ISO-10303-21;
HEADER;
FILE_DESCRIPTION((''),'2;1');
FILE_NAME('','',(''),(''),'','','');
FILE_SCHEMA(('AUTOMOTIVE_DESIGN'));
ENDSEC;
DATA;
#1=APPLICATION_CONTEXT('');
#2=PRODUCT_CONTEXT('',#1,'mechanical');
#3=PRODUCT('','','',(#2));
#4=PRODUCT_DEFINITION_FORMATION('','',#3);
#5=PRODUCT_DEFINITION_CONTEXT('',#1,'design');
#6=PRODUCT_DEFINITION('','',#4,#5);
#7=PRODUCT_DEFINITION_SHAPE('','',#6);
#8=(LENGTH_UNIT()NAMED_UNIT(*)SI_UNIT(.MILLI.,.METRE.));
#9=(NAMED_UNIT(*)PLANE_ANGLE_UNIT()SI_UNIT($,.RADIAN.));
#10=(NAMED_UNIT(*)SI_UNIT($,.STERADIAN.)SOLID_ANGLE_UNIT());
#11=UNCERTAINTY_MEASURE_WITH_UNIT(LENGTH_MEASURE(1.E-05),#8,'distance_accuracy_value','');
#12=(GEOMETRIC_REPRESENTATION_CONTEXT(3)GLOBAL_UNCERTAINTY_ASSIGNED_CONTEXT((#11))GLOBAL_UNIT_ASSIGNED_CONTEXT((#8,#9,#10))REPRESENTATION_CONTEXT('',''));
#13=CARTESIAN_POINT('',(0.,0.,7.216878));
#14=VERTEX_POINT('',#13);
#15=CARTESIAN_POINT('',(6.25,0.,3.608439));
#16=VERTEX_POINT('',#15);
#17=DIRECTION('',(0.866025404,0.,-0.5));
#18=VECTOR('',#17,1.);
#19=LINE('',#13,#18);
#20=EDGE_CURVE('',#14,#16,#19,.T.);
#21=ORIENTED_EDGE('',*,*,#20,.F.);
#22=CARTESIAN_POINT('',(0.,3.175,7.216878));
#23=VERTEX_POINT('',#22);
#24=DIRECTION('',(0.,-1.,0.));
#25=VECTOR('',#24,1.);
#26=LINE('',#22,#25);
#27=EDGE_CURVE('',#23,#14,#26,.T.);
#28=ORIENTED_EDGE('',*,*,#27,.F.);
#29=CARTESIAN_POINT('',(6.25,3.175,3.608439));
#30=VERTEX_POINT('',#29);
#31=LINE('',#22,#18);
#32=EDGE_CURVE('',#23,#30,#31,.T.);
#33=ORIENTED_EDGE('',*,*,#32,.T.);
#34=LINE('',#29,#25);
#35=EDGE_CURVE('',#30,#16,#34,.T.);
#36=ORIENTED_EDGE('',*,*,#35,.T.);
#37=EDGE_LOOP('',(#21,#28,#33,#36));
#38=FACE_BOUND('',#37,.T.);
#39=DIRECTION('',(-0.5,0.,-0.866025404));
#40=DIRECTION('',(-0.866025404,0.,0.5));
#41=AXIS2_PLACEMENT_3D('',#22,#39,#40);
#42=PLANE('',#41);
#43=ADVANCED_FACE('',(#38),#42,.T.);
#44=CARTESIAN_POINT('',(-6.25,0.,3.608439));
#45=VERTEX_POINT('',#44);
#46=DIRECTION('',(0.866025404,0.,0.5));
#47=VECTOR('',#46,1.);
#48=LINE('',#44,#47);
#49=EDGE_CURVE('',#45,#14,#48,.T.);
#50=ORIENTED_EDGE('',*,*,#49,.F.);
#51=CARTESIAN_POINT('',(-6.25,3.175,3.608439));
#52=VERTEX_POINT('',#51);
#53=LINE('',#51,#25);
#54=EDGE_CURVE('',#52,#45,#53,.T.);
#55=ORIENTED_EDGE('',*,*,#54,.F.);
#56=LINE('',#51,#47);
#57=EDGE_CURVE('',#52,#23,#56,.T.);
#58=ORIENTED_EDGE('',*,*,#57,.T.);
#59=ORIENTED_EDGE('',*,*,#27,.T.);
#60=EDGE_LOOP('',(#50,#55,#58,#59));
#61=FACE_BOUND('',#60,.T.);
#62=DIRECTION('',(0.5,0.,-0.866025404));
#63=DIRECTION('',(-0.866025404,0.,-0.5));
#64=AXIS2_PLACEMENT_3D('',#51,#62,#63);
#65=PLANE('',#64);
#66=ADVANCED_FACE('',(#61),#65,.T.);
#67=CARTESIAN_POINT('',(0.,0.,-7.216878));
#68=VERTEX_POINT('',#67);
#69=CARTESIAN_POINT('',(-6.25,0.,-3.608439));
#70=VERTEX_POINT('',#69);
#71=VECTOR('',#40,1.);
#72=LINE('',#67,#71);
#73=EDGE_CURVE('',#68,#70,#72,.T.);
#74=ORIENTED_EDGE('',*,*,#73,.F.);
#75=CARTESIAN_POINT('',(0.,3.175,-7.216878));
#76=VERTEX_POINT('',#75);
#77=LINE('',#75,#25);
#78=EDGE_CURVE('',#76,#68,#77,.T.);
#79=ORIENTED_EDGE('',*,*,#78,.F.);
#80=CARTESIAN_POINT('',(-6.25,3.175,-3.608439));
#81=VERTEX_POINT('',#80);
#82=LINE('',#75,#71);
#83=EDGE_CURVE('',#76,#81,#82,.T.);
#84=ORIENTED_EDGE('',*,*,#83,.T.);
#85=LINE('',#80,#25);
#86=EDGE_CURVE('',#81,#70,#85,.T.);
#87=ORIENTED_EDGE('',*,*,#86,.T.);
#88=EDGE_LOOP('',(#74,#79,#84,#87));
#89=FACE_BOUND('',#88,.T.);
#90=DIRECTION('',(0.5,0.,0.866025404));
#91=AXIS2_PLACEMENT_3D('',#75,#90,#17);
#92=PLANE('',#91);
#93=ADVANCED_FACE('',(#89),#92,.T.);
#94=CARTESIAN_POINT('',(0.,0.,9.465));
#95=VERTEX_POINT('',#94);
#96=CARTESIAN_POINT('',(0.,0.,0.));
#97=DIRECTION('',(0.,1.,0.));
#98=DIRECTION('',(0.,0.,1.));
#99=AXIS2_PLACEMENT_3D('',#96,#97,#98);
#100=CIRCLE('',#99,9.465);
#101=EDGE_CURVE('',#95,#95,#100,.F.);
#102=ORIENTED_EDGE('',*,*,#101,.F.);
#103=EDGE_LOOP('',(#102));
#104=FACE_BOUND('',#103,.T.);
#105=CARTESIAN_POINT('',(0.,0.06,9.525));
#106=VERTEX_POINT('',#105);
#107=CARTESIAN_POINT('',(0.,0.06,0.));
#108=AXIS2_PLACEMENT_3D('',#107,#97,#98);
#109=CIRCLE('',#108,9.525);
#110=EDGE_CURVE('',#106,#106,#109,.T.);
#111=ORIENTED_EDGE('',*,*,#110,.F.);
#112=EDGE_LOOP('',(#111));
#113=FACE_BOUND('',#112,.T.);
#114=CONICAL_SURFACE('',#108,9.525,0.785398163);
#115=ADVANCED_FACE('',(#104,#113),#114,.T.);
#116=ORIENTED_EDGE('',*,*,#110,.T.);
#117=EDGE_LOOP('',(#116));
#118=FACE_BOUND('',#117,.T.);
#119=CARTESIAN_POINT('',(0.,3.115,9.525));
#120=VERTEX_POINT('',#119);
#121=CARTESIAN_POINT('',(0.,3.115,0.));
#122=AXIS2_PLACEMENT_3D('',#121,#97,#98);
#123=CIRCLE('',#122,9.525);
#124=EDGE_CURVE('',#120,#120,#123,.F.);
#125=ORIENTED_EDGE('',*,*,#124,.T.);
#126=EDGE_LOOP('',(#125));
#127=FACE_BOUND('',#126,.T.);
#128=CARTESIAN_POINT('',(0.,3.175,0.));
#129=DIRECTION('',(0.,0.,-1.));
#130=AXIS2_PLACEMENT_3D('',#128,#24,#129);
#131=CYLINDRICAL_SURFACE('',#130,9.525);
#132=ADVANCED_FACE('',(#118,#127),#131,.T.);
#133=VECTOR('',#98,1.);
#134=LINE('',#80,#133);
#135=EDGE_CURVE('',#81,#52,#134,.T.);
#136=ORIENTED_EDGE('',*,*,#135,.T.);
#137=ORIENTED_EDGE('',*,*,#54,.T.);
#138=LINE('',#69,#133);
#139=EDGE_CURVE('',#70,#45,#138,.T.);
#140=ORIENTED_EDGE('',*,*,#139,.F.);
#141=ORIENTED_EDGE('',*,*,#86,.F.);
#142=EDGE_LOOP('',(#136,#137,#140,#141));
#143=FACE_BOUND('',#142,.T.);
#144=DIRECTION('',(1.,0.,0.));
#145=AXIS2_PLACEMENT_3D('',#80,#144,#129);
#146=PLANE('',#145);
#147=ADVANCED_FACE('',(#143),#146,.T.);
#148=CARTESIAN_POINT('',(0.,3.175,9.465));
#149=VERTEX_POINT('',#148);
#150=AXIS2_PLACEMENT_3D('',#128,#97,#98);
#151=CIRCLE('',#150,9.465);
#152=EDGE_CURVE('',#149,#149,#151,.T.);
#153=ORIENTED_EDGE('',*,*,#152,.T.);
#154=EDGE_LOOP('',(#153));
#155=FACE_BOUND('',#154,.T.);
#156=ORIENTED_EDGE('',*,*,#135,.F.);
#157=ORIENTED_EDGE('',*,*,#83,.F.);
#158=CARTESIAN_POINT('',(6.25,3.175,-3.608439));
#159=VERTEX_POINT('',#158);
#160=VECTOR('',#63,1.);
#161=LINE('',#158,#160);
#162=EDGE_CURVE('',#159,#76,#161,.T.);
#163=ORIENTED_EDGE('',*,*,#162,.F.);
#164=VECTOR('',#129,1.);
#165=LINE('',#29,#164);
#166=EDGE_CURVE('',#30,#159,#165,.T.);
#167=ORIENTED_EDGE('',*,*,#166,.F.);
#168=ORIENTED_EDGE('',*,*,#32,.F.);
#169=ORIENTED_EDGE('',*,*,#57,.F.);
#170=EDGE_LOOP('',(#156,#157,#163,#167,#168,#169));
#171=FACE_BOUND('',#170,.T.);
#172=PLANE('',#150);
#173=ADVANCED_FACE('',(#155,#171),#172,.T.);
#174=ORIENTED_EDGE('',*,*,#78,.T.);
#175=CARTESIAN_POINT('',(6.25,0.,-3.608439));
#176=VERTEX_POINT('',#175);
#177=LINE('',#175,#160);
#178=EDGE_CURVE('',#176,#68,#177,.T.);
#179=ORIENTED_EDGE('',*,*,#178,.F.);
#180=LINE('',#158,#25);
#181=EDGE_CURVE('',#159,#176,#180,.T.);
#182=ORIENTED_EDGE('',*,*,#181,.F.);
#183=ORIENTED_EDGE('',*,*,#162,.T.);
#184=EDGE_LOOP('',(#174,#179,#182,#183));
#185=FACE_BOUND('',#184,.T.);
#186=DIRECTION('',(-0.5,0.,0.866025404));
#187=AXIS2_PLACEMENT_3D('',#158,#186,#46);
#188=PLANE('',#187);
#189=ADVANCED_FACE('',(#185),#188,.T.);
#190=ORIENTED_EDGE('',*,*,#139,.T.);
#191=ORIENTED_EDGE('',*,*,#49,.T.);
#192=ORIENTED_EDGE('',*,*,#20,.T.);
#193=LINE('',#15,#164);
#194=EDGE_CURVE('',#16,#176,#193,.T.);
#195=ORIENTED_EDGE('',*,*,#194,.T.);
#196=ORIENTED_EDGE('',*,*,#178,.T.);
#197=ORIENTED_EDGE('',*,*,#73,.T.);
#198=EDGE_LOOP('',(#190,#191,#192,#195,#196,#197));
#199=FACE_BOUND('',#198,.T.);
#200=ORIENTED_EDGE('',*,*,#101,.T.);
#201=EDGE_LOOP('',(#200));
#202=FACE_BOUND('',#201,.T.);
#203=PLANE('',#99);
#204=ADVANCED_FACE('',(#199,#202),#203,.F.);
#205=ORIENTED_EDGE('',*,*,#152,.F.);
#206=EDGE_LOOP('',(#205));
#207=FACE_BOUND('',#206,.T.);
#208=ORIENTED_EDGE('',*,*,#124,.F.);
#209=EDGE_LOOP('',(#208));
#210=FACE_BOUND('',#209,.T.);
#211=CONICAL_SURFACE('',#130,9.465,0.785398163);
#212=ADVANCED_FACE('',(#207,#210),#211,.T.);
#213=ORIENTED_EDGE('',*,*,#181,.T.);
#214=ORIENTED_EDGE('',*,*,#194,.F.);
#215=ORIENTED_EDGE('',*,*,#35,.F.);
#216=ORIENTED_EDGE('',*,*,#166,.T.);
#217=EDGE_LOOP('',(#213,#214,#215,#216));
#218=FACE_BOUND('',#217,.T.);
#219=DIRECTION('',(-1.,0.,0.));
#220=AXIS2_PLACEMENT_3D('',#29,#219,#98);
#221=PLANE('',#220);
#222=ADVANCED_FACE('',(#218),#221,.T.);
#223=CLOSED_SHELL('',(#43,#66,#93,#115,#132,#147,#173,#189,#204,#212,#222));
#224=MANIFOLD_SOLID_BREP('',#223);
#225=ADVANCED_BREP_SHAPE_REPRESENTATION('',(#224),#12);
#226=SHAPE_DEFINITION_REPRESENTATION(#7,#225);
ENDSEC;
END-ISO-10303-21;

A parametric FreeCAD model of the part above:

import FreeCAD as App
import Part
import Sketcher
Q = App.Units.Quantity


def edges_at(feature, points):
    """Names of the edges that pass closest to the given points."""
    edges = feature.Shape.Edges
    near = lambda p: min(range(len(edges)), key=lambda i: edges[i].distToShape(Part.Vertex(*p))[0])
    return sorted({f"Edge{near(p) + 1}" for p in points})

doc = App.newDocument("Part")
body = doc.addObject("PartDesign::Body", "Body")

# Sketch on XZ plane
sketch1 = doc.addObject("Sketcher::SketchObject", "Sketch")
body.addObject(sketch1)
sketch1.AttachmentSupport = (doc.XZ_Plane, [""])
sketch1.MapMode = "FlatFace"
sketch1.addGeometry(Part.Circle(App.Vector(0, 0, 0), App.Vector(0, 0, 1), 9.525), False)
sketch1.addGeometry(Part.LineSegment(App.Vector(-6.25, -3.608439, 0), App.Vector(0, -7.216878, 0)), False)
sketch1.addGeometry(Part.LineSegment(App.Vector(0, -7.216878, 0), App.Vector(6.25, -3.608439, 0)), False)
sketch1.addGeometry(Part.LineSegment(App.Vector(6.25, -3.608439, 0), App.Vector(6.25, 3.608439, 0)), False)
sketch1.addGeometry(Part.LineSegment(App.Vector(6.25, 3.608439, 0), App.Vector(0, 7.216878, 0)), False)
sketch1.addGeometry(Part.LineSegment(App.Vector(0, 7.216878, 0), App.Vector(-6.25, 3.608439, 0)), False)
sketch1.addGeometry(Part.LineSegment(App.Vector(-6.25, 3.608439, 0), App.Vector(-6.25, -3.608439, 0)), False)
sketch1.addConstraint(Sketcher.Constraint("Coincident", 1, 2, 2, 1))
sketch1.addConstraint(Sketcher.Constraint("Coincident", 2, 2, 3, 1))
sketch1.addConstraint(Sketcher.Constraint("Coincident", 3, 2, 4, 1))
sketch1.addConstraint(Sketcher.Constraint("Coincident", 4, 2, 5, 1))
sketch1.addConstraint(Sketcher.Constraint("Coincident", 5, 2, 6, 1))
sketch1.addConstraint(Sketcher.Constraint("Coincident", 6, 2, 1, 1))
sketch1.addConstraint(Sketcher.Constraint("Vertical", 3))
sketch1.addConstraint(Sketcher.Constraint("Vertical", 6))
sketch1.addConstraint(Sketcher.Constraint("Coincident", 0, 3, -1, 1))
sketch1.addConstraint(Sketcher.Constraint("Symmetric", 1, 2, 4, 2, -1, 1))
sketch1.addConstraint(Sketcher.Constraint("Symmetric", 2, 2, 5, 2, -1, 1))
sketch1.addConstraint(Sketcher.Constraint("PointOnObject", 1, 2, -2))
sketch1.addConstraint(Sketcher.Constraint("Parallel", 1, 4))
sketch1.addConstraint(Sketcher.Constraint("Horizontal", 3, 2, 5, 2))
sketch1.addConstraint(Sketcher.Constraint("Diameter", 0, Q("0.75 in")))
sketch1.addConstraint(Sketcher.Constraint("Angle", 1, Q("-30 deg")))
sketch1.addConstraint(Sketcher.Constraint("DistanceY", 3, 1, 3, 2, 7.216878))
sketch1.addConstraint(Sketcher.Constraint("DistanceX", -1, 1, 2, 2, 6.25))
pad1 = doc.addObject("PartDesign::Pad", "Pad")
body.addObject(pad1)
pad1.Profile = sketch1
pad1.Length = Q("0.125 in")
pad1.Reversed = True
doc.recompute()

chamfer = doc.addObject("PartDesign::Chamfer", "Chamfer")
body.addObject(chamfer)
chamfer.Base = (pad1, edges_at(pad1, [(0, 0, -9.525)]))
chamfer.Size = 0.06
doc.recompute()

chamfer2 = doc.addObject("PartDesign::Chamfer", "Chamfer001")
body.addObject(chamfer2)
chamfer2.Base = (chamfer, edges_at(chamfer, [(0, 3.175, -9.525)]))
chamfer2.Size = 0.06

doc.recompute()
